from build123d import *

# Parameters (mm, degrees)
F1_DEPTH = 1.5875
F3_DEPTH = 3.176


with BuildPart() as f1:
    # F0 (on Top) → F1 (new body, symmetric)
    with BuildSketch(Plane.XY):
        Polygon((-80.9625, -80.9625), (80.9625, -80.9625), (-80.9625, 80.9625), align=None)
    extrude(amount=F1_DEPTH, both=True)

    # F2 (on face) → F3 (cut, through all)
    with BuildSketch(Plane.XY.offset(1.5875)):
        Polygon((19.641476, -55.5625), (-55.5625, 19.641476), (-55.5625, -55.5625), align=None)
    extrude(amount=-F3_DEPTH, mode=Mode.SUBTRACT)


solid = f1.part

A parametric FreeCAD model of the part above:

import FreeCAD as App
import Part
import Sketcher
from FreeCAD import Vector
Q = App.Units.Quantity


def add_polygon(sketch, points):
    """Adds a closed chain of lines whose ends are joined by coincident constraints."""
    first, n = sketch.GeometryCount, len(points)
    for a, b in zip(points, points[1:] + points[:1]):
        sketch.addGeometry(Part.LineSegment(App.Vector(*a, 0), App.Vector(*b, 0)), False)
    for i in range(n):
        sketch.addConstraint(Sketcher.Constraint("Coincident", first + i, 2, first + (i + 1) % n, 1))

doc = App.newDocument("Part")
body = doc.addObject("PartDesign::Body", "Body")

# Sketch on XY plane
sketch1 = body.newObject("Sketcher::SketchObject", "Sketch")
sketch1.AttachmentSupport = (doc.getObject("XY_Plane"), [""])
sketch1.MapMode = "FlatFace"
add_polygon(sketch1, [(-81, -81), (81, -81), (-81, 81)])  # lines 0-2
sketch1.addConstraint(Sketcher.Constraint("Horizontal", 0))
sketch1.addConstraint(Sketcher.Constraint("Vertical", 2))
sketch1.addConstraint(Sketcher.Constraint("Symmetric", 0, 2, 1, 2, -1, 1))
sketch1.addConstraint(Sketcher.Constraint("Equal", 0, 2))
sketch1.addConstraint(Sketcher.Constraint("DistanceX", 0, 1, 0, 2, Q("6.375 in")))
pad1 = body.newObject("PartDesign::Pad", "Pad")
pad1.Profile = sketch1
pad1.Length = Q("0.125 in")
pad1.Midplane = True

# Sketch on XY plane
sketch2 = body.newObject("Sketcher::SketchObject", "Sketch001")
sketch2.AttachmentSupport = (doc.getObject("XY_Plane"), [""])
sketch2.MapMode = "FlatFace"
sketch2.AttachmentOffset = App.Placement(Vector(0, 0, 0.0625 * 25.4), App.Rotation())
add_polygon(sketch2, [(20, -56), (-56, 20), (-56, -56)])  # lines 0-2
sketch2.addConstraint(Sketcher.Constraint("Vertical", 1))
sketch2.addConstraint(Sketcher.Constraint("Horizontal", 2))
sketch2.addConstraint(Sketcher.Constraint("Equal", 2, 1))
sketch2.addConstraint(Sketcher.Constraint("DistanceX", 0, 2, -1, 1, Q("2.1875 in")))
sketch2.addConstraint(Sketcher.Constraint("DistanceY", 1, 2, -1, 1, Q("2.1875 in")))
sketch2.addConstraint(Sketcher.Constraint("DistanceX", 2, 1, 2, 2, 75.203976))
pocket1 = body.newObject("PartDesign::Pocket", "Pocket")
pocket1.Profile = sketch2
pocket1.Type = "ThroughAll"

doc.recompute()
